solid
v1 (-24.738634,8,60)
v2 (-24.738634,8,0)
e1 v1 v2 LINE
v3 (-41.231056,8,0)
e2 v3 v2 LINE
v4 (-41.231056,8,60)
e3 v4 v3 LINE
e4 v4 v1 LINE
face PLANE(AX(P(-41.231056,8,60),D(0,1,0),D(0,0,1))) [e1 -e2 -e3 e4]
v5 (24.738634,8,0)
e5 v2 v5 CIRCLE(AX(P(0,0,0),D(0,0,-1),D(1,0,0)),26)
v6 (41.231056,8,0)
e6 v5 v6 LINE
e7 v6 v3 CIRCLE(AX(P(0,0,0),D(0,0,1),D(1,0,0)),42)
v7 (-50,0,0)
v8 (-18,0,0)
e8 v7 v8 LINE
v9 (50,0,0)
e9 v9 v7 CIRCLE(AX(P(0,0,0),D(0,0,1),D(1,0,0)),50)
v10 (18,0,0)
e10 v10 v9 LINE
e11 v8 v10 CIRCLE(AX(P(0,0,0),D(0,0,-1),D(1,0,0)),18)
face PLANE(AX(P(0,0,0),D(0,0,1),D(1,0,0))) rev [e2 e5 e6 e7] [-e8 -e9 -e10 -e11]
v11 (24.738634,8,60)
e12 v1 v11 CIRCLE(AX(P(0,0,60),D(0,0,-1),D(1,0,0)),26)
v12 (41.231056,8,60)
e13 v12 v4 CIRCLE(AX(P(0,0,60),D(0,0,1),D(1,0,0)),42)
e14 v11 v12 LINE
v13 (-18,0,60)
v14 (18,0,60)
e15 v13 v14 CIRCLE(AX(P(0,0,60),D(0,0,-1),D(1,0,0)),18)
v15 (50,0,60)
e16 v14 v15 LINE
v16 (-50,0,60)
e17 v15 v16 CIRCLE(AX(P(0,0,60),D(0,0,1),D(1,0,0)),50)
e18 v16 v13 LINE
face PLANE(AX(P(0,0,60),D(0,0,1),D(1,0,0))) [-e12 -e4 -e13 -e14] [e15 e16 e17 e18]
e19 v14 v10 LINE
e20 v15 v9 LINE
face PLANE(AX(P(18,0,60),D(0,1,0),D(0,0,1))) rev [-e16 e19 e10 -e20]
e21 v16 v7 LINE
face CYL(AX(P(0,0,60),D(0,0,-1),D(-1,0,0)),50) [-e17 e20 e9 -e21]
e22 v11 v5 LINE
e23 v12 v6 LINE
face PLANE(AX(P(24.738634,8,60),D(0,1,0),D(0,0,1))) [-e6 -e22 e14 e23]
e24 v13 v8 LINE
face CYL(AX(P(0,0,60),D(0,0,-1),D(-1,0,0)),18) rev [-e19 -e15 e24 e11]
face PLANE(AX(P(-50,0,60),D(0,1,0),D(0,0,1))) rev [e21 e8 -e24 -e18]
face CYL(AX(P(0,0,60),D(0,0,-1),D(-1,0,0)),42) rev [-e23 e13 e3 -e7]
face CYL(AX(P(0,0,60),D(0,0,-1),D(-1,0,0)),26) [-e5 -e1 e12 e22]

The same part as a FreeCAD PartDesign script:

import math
import FreeCAD as App
import Part
import Sketcher

doc = App.newDocument("Part")
body = doc.addObject("PartDesign::Body", "Body")

# Sketch on XY plane
sketch1 = body.newObject("Sketcher::SketchObject", "Sketch")
sketch1.AttachmentSupport = (doc.getObject("XY_Plane"), [""])
sketch1.MapMode = "FlatFace"
sketch1.addGeometry(Part.LineSegment(App.Vector(-50, 0, 0), App.Vector(-18, 0, 0)), False)
sketch1.addGeometry(Part.ArcOfCircle(Part.Circle(App.Vector(0, 0, 0), App.Vector(0, 0, 1), 18), math.radians(0), math.radians(180)), False)
sketch1.addGeometry(Part.LineSegment(App.Vector(18, 0, 0), App.Vector(50, 0, 0)), False)
sketch1.addGeometry(Part.ArcOfCircle(Part.Circle(App.Vector(0, 0, 0), App.Vector(0, 0, 1), 50), math.radians(0), math.radians(180)), False)
sketch1.addGeometry(Part.LineSegment(App.Vector(-25, 8, 0), App.Vector(-41, 8, 0)), False)
sketch1.addGeometry(Part.ArcOfCircle(Part.Circle(App.Vector(0, 0, 0), App.Vector(0, 0, 1), 42), math.radians(11), math.radians(169)), False)
sketch1.addGeometry(Part.LineSegment(App.Vector(41, 8, 0), App.Vector(25, 8, 0)), False)
sketch1.addGeometry(Part.ArcOfCircle(Part.Circle(App.Vector(0, 0, 0), App.Vector(0, 0, 1), 26), math.radians(18), math.radians(162)), False)
sketch1.addConstraint(Sketcher.Constraint("Coincident", 0, 2, 1, 2))
sketch1.addConstraint(Sketcher.Constraint("Coincident", 1, 1, 2, 1))
sketch1.addConstraint(Sketcher.Constraint("Coincident", 2, 2, 3, 1))
sketch1.addConstraint(Sketcher.Constraint("Coincident", 3, 2, 0, 1))
sketch1.addConstraint(Sketcher.Constraint("Coincident", 4, 2, 5, 2))
sketch1.addConstraint(Sketcher.Constraint("Coincident", 5, 1, 6, 1))
sketch1.addConstraint(Sketcher.Constraint("Coincident", 6, 2, 7, 1))
sketch1.addConstraint(Sketcher.Constraint("Coincident", 7, 2, 4, 1))
sketch1.addConstraint(Sketcher.Constraint("Horizontal", 0))
sketch1.addConstraint(Sketcher.Constraint("Horizontal", 2))
sketch1.addConstraint(Sketcher.Constraint("Horizontal", 4))
sketch1.addConstraint(Sketcher.Constraint("Horizontal", 6))
sketch1.addConstraint(Sketcher.Constraint("Coincident", 1, 3, -1, 1))
sketch1.addConstraint(Sketcher.Constraint("Coincident", 3, 3, -1, 1))
sketch1.addConstraint(Sketcher.Constraint("Coincident", 5, 3, -1, 1))
sketch1.addConstraint(Sketcher.Constraint("Coincident", 7, 3, -1, 1))
sketch1.addConstraint(Sketcher.Constraint("PointOnObject", 0, 2, -1))
sketch1.addConstraint(Sketcher.Constraint("PointOnObject", 1, 1, -1))
sketch1.addConstraint(Sketcher.Constraint("Horizontal", 4, 2, 5, 1))
sketch1.addConstraint(Sketcher.Constraint("Radius", 1, 18.0))
sketch1.addConstraint(Sketcher.Constraint("Radius", 3, 50.0))
sketch1.addConstraint(Sketcher.Constraint("Radius", 5, 42.0))
sketch1.addConstraint(Sketcher.Constraint("Radius", 7, 26.0))
sketch1.addConstraint(Sketcher.Constraint("DistanceY", -1, 1, 4, 2, 8.0))
pad1 = body.newObject("PartDesign::Pad", "Pad")
pad1.Profile = sketch1
pad1.Length = 60

doc.recompute()
